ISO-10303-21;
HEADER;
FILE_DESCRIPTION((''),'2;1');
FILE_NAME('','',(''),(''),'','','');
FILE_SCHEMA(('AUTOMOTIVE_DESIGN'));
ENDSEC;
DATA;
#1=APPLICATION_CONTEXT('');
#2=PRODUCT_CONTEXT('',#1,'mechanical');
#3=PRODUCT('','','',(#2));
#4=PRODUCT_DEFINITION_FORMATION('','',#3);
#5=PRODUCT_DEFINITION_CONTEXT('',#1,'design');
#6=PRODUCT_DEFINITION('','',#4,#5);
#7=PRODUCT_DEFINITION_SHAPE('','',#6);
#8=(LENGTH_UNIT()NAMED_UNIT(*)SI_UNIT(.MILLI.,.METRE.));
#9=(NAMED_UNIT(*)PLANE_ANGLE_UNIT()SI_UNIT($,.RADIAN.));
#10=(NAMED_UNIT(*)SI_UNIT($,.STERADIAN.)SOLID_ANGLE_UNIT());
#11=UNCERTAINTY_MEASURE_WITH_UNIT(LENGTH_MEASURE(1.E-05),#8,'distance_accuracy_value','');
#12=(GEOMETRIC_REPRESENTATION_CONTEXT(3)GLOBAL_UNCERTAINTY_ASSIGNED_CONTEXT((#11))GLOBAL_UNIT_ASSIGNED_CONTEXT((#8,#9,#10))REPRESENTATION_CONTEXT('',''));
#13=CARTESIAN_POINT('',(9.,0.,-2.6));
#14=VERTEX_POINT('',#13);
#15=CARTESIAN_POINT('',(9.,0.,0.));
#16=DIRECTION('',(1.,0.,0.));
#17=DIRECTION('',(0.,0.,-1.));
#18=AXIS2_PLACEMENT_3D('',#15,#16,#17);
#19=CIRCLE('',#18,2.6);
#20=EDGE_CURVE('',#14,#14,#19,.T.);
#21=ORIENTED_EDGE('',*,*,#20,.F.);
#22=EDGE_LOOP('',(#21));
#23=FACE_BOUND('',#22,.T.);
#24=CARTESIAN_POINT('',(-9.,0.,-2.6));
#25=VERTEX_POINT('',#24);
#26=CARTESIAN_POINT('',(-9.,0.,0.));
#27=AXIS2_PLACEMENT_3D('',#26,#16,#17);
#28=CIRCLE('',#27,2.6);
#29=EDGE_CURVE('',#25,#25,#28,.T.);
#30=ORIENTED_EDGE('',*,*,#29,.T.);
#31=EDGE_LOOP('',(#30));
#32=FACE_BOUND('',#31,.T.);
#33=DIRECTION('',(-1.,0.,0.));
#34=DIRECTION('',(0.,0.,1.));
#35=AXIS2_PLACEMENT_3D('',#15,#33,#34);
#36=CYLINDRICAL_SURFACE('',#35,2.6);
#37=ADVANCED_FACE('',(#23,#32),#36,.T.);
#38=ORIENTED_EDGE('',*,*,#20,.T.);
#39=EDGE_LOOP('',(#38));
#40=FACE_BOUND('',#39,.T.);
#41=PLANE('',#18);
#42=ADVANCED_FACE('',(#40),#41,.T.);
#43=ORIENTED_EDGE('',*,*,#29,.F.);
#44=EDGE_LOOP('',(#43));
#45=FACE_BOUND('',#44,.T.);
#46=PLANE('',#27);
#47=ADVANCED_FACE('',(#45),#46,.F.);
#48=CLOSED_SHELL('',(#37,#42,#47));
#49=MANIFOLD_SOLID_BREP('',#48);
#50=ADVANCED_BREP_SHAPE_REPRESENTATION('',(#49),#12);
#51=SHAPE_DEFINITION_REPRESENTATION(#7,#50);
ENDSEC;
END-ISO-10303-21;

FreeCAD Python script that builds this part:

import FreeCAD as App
import Part
import Sketcher
from FreeCAD import Vector

doc = App.newDocument("Part")
params = doc.addObject("Spreadsheet::Sheet", "Params")
for row, (alias, value) in enumerate([
    ("sketch1_diameter", "5.2 mm"),
    ("pad1_length", "18 mm"),
], start=1):
    params.set(f"A{row}", alias)
    params.set(f"B{row}", "=" + value)
    params.setAlias(f"B{row}", alias)

body = doc.addObject("PartDesign::Body", "Body")

# Sketch on YZ plane
sketch1 = doc.addObject("Sketcher::SketchObject", "Sketch")
body.addObject(sketch1)
sketch1.AttachmentSupport = (doc.YZ_Plane, [""])
sketch1.MapMode = "FlatFace"
sketch1.addGeometry(Part.Circle(Vector(0, 0, 0), Vector(0, 0, 1), 2.6), False)
sketch1.addConstraint(Sketcher.Constraint("Coincident", 0, 3, -1, 1))
sketch1.addConstraint(Sketcher.Constraint("Diameter", 0, 5.2))
sketch1.setExpression("Constraints[1]", "Params.sketch1_diameter")
pad1 = doc.addObject("PartDesign::Pad", "Pad")
body.addObject(pad1)
pad1.Profile = sketch1
pad1.setExpression("Length", "Params.pad1_length")
pad1.Midplane = True

doc.recompute()
